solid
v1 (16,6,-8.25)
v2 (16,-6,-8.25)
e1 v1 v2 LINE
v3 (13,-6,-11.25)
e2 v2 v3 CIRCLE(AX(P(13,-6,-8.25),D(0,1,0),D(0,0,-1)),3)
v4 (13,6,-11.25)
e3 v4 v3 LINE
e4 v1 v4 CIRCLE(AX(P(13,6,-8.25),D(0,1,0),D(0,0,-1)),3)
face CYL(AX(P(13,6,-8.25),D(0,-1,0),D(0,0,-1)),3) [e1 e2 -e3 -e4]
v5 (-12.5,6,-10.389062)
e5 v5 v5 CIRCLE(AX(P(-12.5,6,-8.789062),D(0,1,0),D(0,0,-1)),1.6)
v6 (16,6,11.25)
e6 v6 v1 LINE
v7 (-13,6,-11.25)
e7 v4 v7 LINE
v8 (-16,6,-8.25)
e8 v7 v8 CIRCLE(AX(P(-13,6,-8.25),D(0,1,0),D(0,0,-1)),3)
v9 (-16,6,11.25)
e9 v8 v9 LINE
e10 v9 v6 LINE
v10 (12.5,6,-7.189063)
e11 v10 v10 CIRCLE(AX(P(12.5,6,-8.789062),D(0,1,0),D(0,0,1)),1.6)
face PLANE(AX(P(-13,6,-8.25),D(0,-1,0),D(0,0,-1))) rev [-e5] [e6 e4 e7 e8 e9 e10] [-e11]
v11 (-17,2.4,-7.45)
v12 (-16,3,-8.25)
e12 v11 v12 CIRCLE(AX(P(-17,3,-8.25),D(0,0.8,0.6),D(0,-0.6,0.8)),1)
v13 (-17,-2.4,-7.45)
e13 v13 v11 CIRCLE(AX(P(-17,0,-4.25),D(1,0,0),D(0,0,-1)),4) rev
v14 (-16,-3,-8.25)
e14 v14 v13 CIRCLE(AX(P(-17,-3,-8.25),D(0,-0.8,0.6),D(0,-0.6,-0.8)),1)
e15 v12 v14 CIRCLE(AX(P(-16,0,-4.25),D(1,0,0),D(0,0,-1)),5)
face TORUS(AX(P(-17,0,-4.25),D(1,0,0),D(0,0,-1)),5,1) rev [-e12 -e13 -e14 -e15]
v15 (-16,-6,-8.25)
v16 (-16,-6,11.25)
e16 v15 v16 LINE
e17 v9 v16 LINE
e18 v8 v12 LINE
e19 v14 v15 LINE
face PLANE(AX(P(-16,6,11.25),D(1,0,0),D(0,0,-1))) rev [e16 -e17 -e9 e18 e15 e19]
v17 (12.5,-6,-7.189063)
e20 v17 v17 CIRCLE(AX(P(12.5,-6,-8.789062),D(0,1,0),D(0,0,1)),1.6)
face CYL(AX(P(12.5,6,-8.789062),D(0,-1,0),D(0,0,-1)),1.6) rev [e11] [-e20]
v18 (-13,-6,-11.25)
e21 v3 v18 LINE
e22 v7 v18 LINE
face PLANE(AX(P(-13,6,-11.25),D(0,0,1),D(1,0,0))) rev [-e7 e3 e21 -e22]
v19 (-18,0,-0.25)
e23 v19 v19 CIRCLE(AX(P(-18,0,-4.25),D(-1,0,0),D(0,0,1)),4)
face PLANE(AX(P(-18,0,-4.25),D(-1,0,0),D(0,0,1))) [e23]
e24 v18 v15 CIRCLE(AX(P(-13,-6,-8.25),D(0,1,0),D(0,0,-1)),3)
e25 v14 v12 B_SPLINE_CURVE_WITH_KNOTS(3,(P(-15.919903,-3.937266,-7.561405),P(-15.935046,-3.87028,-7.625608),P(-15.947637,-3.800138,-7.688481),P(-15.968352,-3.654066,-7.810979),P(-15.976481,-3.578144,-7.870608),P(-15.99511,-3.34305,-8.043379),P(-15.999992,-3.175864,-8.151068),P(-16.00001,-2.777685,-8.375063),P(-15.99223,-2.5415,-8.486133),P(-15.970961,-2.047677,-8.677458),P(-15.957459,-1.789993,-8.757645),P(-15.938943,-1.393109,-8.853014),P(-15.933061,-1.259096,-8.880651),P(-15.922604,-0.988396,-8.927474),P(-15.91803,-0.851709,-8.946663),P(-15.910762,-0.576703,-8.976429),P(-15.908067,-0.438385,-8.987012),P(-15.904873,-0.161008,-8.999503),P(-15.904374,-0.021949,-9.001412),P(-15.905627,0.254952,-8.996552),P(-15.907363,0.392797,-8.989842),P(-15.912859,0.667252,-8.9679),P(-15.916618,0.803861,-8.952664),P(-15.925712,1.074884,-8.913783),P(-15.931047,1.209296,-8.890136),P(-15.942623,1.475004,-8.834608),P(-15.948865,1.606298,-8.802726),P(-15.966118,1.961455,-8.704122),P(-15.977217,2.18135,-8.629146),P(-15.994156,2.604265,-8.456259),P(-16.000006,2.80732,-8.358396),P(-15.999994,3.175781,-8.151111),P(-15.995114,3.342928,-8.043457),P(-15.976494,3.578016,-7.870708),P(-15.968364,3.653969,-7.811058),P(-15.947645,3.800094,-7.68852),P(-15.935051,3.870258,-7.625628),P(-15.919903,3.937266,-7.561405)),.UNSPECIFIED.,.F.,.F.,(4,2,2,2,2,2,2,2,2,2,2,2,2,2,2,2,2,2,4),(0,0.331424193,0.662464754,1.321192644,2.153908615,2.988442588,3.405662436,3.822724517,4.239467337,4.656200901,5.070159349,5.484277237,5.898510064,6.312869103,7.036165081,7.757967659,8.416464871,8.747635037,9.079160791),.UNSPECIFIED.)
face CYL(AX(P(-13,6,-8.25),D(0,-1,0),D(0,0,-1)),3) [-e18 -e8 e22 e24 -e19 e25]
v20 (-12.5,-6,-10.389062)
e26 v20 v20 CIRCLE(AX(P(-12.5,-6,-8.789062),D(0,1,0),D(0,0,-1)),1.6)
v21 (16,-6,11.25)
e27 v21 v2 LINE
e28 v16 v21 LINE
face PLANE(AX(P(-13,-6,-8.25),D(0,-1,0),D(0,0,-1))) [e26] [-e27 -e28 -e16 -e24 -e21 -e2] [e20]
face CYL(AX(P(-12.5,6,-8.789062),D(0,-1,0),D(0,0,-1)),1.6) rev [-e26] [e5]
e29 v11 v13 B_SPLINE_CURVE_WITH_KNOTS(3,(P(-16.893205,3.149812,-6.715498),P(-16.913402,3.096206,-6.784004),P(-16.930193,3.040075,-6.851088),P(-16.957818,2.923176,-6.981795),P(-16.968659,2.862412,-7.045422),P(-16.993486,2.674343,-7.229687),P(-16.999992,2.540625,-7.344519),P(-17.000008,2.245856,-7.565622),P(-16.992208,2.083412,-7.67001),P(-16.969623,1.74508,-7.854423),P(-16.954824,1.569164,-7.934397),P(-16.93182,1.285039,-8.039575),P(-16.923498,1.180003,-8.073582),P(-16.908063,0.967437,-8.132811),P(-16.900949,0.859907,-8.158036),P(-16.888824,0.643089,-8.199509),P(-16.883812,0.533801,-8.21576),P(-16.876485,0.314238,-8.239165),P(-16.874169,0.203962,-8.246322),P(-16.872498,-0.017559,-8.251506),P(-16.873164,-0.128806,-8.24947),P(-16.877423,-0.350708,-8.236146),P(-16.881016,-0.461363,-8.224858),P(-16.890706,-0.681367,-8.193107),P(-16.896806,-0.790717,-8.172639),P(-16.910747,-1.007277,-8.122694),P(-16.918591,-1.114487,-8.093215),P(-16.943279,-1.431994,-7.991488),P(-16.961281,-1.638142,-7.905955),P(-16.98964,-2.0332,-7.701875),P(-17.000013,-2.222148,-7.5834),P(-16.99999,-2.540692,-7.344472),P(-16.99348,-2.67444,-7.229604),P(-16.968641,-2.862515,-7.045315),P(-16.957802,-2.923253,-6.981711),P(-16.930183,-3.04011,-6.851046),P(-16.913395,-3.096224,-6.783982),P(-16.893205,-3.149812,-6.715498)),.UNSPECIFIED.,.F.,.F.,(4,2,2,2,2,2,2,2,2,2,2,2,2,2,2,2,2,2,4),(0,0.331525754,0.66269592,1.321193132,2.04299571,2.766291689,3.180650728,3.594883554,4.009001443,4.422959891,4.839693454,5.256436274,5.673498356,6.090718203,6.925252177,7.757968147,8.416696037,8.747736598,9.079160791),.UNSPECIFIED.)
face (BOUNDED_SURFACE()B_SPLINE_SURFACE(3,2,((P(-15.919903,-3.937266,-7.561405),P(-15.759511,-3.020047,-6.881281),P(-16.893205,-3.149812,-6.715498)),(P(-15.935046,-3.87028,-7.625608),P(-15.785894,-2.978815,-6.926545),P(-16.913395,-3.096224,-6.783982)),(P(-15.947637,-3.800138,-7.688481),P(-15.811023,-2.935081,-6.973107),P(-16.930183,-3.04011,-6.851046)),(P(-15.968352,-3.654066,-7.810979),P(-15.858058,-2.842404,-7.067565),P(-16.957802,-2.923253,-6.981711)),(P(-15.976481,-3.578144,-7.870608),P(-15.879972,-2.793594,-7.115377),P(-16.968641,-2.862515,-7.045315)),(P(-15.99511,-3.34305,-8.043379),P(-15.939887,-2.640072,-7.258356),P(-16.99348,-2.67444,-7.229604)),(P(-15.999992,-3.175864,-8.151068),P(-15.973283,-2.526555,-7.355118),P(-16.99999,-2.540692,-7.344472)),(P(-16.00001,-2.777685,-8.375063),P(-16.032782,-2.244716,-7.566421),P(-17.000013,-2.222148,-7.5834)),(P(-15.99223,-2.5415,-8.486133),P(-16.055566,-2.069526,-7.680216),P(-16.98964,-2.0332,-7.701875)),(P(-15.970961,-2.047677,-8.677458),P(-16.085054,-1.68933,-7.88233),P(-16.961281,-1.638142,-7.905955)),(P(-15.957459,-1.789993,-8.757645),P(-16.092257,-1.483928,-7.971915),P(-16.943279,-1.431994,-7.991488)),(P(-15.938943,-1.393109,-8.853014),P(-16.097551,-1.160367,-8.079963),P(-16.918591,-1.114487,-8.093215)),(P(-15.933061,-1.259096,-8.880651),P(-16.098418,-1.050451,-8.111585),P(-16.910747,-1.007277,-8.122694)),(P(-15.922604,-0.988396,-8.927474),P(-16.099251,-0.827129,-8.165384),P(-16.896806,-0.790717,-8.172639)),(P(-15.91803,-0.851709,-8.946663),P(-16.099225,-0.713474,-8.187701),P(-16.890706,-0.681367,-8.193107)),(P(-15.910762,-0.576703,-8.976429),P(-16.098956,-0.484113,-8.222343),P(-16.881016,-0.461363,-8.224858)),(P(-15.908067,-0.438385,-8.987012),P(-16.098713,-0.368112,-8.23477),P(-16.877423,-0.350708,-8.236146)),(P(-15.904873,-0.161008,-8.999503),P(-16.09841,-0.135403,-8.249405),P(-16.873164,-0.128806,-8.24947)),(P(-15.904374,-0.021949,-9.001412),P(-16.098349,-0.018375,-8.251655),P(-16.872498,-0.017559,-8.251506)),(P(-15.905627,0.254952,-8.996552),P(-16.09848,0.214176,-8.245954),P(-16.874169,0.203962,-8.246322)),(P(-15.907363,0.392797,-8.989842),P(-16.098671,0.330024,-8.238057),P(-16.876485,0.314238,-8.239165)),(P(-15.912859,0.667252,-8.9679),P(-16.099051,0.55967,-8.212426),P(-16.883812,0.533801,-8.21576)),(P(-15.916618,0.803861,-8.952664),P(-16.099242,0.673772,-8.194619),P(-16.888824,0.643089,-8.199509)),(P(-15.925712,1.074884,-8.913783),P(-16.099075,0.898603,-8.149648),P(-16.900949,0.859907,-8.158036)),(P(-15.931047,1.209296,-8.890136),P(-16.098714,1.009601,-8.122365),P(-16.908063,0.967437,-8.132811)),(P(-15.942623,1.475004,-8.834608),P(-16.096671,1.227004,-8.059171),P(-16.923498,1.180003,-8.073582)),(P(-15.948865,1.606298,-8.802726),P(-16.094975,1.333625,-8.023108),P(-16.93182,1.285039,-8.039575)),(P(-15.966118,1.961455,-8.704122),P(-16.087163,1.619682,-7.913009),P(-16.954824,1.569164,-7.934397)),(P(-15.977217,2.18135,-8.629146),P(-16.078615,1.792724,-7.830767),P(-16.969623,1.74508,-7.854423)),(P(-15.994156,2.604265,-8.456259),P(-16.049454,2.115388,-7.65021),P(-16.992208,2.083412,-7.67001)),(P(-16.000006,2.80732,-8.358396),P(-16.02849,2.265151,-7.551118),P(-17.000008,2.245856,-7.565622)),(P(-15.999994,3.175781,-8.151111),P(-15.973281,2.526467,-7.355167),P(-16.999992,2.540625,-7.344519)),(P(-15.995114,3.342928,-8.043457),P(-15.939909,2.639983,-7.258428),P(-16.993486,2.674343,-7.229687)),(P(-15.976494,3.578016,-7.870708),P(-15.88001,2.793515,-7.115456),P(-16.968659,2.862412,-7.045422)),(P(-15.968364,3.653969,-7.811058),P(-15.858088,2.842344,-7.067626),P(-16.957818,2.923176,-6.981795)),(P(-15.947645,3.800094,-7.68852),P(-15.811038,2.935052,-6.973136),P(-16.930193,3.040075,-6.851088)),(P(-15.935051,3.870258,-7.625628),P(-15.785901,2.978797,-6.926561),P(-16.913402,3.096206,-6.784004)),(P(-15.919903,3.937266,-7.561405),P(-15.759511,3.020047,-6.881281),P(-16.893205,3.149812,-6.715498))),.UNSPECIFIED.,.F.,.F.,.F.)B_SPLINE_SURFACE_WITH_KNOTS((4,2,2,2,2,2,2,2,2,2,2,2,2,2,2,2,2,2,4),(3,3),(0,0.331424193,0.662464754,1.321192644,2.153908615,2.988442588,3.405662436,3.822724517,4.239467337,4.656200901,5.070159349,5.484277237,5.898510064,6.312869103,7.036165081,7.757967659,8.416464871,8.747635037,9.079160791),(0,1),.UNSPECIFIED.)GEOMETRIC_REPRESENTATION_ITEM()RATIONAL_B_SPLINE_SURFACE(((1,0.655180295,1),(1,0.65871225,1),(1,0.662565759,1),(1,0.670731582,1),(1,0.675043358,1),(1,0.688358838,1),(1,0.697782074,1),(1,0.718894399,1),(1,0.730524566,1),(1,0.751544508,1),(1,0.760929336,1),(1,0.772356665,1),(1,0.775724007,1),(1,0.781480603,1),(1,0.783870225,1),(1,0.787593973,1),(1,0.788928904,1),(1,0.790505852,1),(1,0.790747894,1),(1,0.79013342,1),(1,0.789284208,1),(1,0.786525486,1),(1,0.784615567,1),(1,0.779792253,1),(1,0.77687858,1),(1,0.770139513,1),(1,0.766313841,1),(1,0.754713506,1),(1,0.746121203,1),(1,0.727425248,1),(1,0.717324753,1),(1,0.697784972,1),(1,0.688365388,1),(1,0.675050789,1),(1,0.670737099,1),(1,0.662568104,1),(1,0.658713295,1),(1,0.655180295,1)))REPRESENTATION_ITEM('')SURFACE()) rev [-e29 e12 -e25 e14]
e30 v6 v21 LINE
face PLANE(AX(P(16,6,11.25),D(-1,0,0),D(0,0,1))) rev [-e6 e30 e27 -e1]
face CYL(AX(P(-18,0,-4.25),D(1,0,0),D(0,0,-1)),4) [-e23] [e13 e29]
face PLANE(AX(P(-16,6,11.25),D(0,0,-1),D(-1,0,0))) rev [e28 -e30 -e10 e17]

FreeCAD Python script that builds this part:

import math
import FreeCAD as App
import Part
import Sketcher

V = App.Vector


def edges_at(feature, points):
    """Names of the edges that pass closest to the given points."""
    edges = feature.Shape.Edges
    near = lambda p: min(range(len(edges)), key=lambda i: edges[i].distToShape(Part.Vertex(*p))[0])
    return sorted({f"Edge{near(p) + 1}" for p in points})

doc = App.newDocument("Part")
body = doc.addObject("PartDesign::Body", "Body")

sketch1 = body.newObject("Sketcher::SketchObject", "Sketch")
sketch1.AttachmentSupport = (doc.getObject("XZ_Plane"), [""])
sketch1.MapMode = "FlatFace"
sketch1.addGeometry([
    Part.LineSegment(V(-16, 11.2, 0), V(16, 11.2, 0)),
    Part.LineSegment(V(16, 11.2, 0), V(16, -8.2, 0)),
    Part.ArcOfCircle(Part.Circle(V(13, -8.3, 0), V(0, 0, 1), 3), math.radians(-90), math.radians(0)),
    Part.LineSegment(V(13, -11.2, 0), V(-13, -11.2, 0)),
    Part.ArcOfCircle(Part.Circle(V(-13, -8.3, 0), V(0, 0, 1), 3), math.radians(180), math.radians(270)),
    Part.LineSegment(V(-16, -8.2, 0), V(-16, 11.2, 0)),
    Part.Circle(V(-12.5, -8.8, 0), V(0, 0, 1), 1.6),
    Part.Circle(V(12.5, -8.8, 0), V(0, 0, 1), 1.6),
], False)
sketch1.addConstraint([
    Sketcher.Constraint("Coincident", 0, 2, 1, 1),
    Sketcher.Constraint("Tangent", 1, 2, 2, 2),
    Sketcher.Constraint("Tangent", 2, 1, 3, 1),
    Sketcher.Constraint("Tangent", 3, 2, 4, 2),
    Sketcher.Constraint("Tangent", 4, 1, 5, 1),
    Sketcher.Constraint("Coincident", 5, 2, 0, 1),
    Sketcher.Constraint("Horizontal", 0),
    Sketcher.Constraint("Vertical", 1),
    Sketcher.Constraint("Horizontal", 3),
    Sketcher.Constraint("Vertical", 5),
    Sketcher.Constraint("Equal", 2, 4),
    Sketcher.Constraint("Equal", 6, 7),
    Sketcher.Constraint("Symmetric", 6, 3, 7, 3, -2),
    Sketcher.Constraint("Radius", 2, 3.0),
    Sketcher.Constraint("Diameter", 6, 3.2),
    Sketcher.Constraint("DistanceX", 0, 1, 0, 2, 32.0),
    Sketcher.Constraint("DistanceY", 1, 2, 1, 1, 19.5),
    Sketcher.Constraint("DistanceX", -1, 1, 2, 3, 13.0),
    Sketcher.Constraint("DistanceX", 6, 3, 7, 3, 25.0),
    Sketcher.Constraint("DistanceY", 2, 3, -1, 1, 8.25),
    Sketcher.Constraint("DistanceY", 6, 3, -1, 1, 8.789062),
])
pad1 = body.newObject("PartDesign::Pad", "Pad")
pad1.Profile = sketch1
pad1.Length = 12
pad1.Midplane = True

sketch2 = body.newObject("Sketcher::SketchObject", "Sketch001")
sketch2.AttachmentSupport = (doc.getObject("YZ_Plane"), [""])
sketch2.MapMode = "FlatFace"
sketch2.AttachmentOffset = App.Placement(V(0, 0, -16), App.Rotation())
sketch2.addGeometry(Part.Circle(V(0, -4.2, 0), V(0, 0, 1), 4), False)
sketch2.addConstraint([
    Sketcher.Constraint("PointOnObject", 0, 3, -2),
    Sketcher.Constraint("Diameter", 0, 8.0),
    Sketcher.Constraint("DistanceY", 0, 3, -1, 1, 4.25),
])
pad2 = body.newObject("PartDesign::Pad", "Pad001")
pad2.Profile = sketch2
pad2.Length = 2
pad2.Reversed = True
doc.recompute()

fillet = body.newObject("PartDesign::Fillet", "Fillet")
fillet.Base = (pad2, edges_at(pad2, [(-16, 0, -0.25)]))
fillet.Radius = 1

doc.recompute()
